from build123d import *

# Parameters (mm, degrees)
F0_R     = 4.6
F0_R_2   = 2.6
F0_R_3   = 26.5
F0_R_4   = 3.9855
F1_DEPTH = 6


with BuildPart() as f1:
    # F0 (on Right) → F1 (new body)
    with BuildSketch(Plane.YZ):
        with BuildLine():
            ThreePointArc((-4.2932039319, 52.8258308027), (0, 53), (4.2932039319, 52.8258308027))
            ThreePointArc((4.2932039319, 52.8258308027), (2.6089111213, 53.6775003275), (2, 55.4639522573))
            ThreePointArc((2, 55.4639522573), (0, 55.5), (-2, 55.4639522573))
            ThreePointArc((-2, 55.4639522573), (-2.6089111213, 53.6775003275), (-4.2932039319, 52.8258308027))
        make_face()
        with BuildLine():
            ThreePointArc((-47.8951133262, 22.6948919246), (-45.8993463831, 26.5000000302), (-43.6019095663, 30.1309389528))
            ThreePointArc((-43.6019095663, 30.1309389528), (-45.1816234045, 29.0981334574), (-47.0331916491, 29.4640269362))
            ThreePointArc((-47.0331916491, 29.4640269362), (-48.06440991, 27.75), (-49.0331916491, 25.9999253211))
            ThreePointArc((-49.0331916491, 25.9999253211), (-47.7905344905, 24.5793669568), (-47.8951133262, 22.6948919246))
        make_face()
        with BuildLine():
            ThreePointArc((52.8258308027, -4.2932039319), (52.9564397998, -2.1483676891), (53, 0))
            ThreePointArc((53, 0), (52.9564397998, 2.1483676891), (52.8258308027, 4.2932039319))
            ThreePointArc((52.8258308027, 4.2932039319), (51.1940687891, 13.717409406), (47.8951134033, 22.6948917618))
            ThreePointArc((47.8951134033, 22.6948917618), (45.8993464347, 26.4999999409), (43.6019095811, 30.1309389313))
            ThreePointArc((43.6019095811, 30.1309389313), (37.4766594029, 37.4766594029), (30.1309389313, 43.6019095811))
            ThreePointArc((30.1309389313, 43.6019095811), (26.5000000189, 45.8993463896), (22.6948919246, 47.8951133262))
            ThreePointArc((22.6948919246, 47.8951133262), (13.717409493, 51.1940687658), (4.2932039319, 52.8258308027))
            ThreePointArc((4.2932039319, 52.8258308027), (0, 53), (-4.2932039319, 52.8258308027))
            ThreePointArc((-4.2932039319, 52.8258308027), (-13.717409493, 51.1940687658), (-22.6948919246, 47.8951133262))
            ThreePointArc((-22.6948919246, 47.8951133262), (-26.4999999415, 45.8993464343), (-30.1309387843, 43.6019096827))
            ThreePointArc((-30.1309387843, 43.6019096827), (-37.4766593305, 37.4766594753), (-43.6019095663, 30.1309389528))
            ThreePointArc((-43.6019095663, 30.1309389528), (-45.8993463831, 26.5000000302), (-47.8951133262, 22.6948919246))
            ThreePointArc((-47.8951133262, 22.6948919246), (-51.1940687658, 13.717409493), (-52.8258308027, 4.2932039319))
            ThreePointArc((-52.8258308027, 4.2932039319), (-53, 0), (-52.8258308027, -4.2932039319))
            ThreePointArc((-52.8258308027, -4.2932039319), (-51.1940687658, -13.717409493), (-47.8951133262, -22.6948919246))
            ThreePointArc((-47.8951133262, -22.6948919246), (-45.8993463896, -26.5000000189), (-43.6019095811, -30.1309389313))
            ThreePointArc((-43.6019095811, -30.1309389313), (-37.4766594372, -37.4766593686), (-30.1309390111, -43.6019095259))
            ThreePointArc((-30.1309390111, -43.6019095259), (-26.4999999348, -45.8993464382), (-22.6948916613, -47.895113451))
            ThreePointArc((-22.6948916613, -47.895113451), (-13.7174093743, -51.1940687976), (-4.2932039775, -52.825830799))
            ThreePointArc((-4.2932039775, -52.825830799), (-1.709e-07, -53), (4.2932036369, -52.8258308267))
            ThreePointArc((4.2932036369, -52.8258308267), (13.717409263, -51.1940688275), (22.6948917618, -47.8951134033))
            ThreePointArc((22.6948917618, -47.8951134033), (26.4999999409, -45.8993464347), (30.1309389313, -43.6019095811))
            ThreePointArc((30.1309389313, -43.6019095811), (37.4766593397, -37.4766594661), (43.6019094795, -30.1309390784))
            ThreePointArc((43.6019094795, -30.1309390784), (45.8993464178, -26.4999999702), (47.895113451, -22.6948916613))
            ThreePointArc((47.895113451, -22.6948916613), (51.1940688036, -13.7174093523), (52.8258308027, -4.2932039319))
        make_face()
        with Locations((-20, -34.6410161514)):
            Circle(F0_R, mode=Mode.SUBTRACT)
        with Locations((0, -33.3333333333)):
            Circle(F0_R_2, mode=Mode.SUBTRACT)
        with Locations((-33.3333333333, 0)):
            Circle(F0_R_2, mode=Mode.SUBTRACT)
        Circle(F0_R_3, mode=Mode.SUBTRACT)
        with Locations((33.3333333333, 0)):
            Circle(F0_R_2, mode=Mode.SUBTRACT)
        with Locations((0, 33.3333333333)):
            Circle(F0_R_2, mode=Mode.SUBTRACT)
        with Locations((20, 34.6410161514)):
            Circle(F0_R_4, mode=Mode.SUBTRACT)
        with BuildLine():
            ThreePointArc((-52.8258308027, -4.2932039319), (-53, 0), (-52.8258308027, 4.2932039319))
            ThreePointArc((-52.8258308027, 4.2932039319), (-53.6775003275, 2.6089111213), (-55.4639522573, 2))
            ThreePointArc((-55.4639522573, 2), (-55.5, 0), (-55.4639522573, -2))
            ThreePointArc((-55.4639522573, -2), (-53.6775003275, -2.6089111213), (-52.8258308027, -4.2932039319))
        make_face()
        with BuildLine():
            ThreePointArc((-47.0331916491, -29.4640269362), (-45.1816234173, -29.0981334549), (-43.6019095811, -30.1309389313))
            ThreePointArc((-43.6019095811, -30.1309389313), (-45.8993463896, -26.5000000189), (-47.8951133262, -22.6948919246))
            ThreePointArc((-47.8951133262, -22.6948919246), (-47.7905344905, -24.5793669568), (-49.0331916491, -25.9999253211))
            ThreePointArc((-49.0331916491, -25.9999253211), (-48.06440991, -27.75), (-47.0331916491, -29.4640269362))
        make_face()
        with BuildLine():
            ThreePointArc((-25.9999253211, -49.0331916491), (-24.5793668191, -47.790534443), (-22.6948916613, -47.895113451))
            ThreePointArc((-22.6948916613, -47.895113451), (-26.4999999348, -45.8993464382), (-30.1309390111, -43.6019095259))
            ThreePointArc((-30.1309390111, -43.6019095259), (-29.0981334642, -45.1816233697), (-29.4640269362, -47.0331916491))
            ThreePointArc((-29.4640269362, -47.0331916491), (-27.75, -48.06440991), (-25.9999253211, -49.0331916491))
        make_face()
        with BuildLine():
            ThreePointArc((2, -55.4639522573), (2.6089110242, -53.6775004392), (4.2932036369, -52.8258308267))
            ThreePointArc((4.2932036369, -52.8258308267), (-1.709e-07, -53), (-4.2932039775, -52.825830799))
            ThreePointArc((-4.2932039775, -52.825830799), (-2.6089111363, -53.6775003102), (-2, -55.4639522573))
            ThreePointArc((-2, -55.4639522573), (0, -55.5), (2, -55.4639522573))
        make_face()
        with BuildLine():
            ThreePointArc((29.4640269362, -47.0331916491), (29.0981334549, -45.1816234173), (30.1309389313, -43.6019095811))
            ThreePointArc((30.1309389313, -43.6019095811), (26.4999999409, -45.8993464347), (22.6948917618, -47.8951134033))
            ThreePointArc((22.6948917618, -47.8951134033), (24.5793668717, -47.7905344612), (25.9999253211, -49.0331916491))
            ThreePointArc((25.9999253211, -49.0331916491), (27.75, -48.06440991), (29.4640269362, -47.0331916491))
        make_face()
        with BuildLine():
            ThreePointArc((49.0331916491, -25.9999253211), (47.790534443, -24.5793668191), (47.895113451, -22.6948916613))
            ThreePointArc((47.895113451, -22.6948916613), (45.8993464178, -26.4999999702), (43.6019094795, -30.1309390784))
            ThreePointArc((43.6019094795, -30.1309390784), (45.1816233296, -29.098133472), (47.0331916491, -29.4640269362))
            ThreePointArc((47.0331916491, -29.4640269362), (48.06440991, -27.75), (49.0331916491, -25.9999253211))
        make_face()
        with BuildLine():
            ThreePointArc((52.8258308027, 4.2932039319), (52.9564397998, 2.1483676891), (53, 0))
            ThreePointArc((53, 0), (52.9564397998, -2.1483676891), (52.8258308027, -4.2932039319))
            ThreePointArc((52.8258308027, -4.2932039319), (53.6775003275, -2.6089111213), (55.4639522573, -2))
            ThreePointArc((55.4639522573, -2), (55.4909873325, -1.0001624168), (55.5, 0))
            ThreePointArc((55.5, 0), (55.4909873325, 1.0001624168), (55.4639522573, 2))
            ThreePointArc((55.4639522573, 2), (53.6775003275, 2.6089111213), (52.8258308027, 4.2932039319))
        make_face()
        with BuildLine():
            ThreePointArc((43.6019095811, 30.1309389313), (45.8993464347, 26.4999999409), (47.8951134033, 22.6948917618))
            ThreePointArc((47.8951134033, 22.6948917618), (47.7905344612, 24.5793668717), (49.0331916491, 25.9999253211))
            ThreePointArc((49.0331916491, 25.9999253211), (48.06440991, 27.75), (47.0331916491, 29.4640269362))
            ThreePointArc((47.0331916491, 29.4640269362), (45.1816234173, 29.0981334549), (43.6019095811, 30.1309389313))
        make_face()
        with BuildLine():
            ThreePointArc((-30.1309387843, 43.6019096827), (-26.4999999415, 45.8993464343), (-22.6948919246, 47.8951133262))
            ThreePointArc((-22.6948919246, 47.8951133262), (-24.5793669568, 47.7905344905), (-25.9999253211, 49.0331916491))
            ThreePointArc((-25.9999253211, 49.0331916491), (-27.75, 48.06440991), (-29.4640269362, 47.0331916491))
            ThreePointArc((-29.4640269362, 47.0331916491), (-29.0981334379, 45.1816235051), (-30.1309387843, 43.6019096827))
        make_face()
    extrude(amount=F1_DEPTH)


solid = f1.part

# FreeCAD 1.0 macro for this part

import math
import FreeCAD as App
import Part
import Sketcher
from FreeCAD import Vector

doc = App.newDocument("Part")
body = doc.addObject("PartDesign::Body", "Body")

sketch1 = body.newObject("Sketcher::SketchObject", "Sketch")
sketch1.AttachmentSupport = (doc.getObject("YZ_Plane"), [""])
sketch1.MapMode = "FlatFace"
sketch1.addGeometry(Part.ArcOfCircle(Part.Circle(Vector(4.5, 55.3, 0), Vector(0, 0, 1), 2.5), math.radians(177), math.radians(265)), False)
sketch1.addGeometry(Part.ArcOfCircle(Part.Circle(Vector(0, 0, 0), Vector(0, 0, 1), 55.5), math.radians(87.93), math.radians(92.07)), False)
sketch1.addGeometry(Part.ArcOfCircle(Part.Circle(Vector(-4.5, 55.3, 0), Vector(0, 0, 1), 2.5), math.radians(-85), math.radians(3)), False)
sketch1.addGeometry(Part.ArcOfCircle(Part.Circle(Vector(0, 0, 0), Vector(0, 0, 1), 53), math.radians(95), math.radians(115)), False)
sketch1.addGeometry(Part.ArcOfCircle(Part.Circle(Vector(-23.8, 50.2, 0), Vector(0, 0, 1), 2.5), math.radians(-153), math.radians(-65)), False)
sketch1.addGeometry(Part.ArcOfCircle(Part.Circle(Vector(0, 0, 0), Vector(0, 0, 1), 55.5), math.radians(117.93), math.radians(122.07)), False)
sketch1.addGeometry(Part.ArcOfCircle(Part.Circle(Vector(-31.6, 45.7, 0), Vector(0, 0, 1), 2.5), math.radians(-55), math.radians(33)), False)
sketch1.addGeometry(Part.ArcOfCircle(Part.Circle(Vector(0, 0, 0), Vector(0, 0, 1), 53), math.radians(125), math.radians(145)), False)
sketch1.addGeometry(Part.ArcOfCircle(Part.Circle(Vector(-45.7, 31.6, 0), Vector(0, 0, 1), 2.5), math.radians(-123), math.radians(-35)), False)
sketch1.addGeometry(Part.ArcOfCircle(Part.Circle(Vector(0, 0, 0), Vector(0, 0, 1), 55.5), math.radians(147.93), math.radians(152.07)), False)
sketch1.addGeometry(Part.ArcOfCircle(Part.Circle(Vector(-50.2, 23.8, 0), Vector(0, 0, 1), 2.5), math.radians(-25), math.radians(63)), False)
sketch1.addGeometry(Part.ArcOfCircle(Part.Circle(Vector(0, 0, 0), Vector(0, 0, 1), 53), math.radians(155), math.radians(175)), False)
sketch1.addGeometry(Part.ArcOfCircle(Part.Circle(Vector(-55.3, 4.5, 0), Vector(0, 0, 1), 2.5), math.radians(-93), math.radians(-5)), False)
sketch1.addGeometry(Part.ArcOfCircle(Part.Circle(Vector(0, 0, 0), Vector(0, 0, 1), 55.5), math.radians(177.93), math.radians(182.07)), False)
sketch1.addGeometry(Part.ArcOfCircle(Part.Circle(Vector(-55.3, -4.5, 0), Vector(0, 0, 1), 2.5), math.radians(5), math.radians(93)), False)
sketch1.addGeometry(Part.ArcOfCircle(Part.Circle(Vector(0, 0, 0), Vector(0, 0, 1), 53), math.radians(-175), math.radians(-155)), False)
sketch1.addGeometry(Part.ArcOfCircle(Part.Circle(Vector(-50.2, -23.8, 0), Vector(0, 0, 1), 2.5), math.radians(-63), math.radians(25)), False)
sketch1.addGeometry(Part.ArcOfCircle(Part.Circle(Vector(0, 0, 0), Vector(0, 0, 1), 55.5), math.radians(-152.07), math.radians(-147.93)), False)
sketch1.addGeometry(Part.ArcOfCircle(Part.Circle(Vector(-45.7, -31.6, 0), Vector(0, 0, 1), 2.5), math.radians(35), math.radians(123)), False)
sketch1.addGeometry(Part.ArcOfCircle(Part.Circle(Vector(0, 0, 0), Vector(0, 0, 1), 53), math.radians(-145), math.radians(-125)), False)
sketch1.addGeometry(Part.ArcOfCircle(Part.Circle(Vector(-31.6, -45.7, 0), Vector(0, 0, 1), 2.5), math.radians(-33), math.radians(55)), False)
sketch1.addGeometry(Part.ArcOfCircle(Part.Circle(Vector(0, 0, 0), Vector(0, 0, 1), 55.5), math.radians(-122.07), math.radians(-117.93)), False)
sketch1.addGeometry(Part.ArcOfCircle(Part.Circle(Vector(-23.8, -50.2, 0), Vector(0, 0, 1), 2.5), math.radians(65), math.radians(153)), False)
sketch1.addGeometry(Part.ArcOfCircle(Part.Circle(Vector(0, 0, 0), Vector(0, 0, 1), 53), math.radians(-115), math.radians(-95)), False)
sketch1.addGeometry(Part.ArcOfCircle(Part.Circle(Vector(-4.5, -55.3, 0), Vector(0, 0, 1), 2.5), math.radians(-3), math.radians(85)), False)
sketch1.addGeometry(Part.ArcOfCircle(Part.Circle(Vector(0, 0, 0), Vector(0, 0, 1), 55.5), math.radians(-92.07), math.radians(-87.93)), False)
sketch1.addGeometry(Part.ArcOfCircle(Part.Circle(Vector(4.5, -55.3, 0), Vector(0, 0, 1), 2.5), math.radians(95), math.radians(183)), False)
sketch1.addGeometry(Part.ArcOfCircle(Part.Circle(Vector(0, 0, 0), Vector(0, 0, 1), 53), math.radians(-85), math.radians(-65)), False)
sketch1.addGeometry(Part.ArcOfCircle(Part.Circle(Vector(23.8, -50.2, 0), Vector(0, 0, 1), 2.5), math.radians(27), math.radians(115)), False)
sketch1.addGeometry(Part.ArcOfCircle(Part.Circle(Vector(0, 0, 0), Vector(0, 0, 1), 55.5), math.radians(-62.07), math.radians(-57.93)), False)
sketch1.addGeometry(Part.ArcOfCircle(Part.Circle(Vector(31.6, -45.7, 0), Vector(0, 0, 1), 2.5), math.radians(125), math.radians(213)), False)
sketch1.addGeometry(Part.ArcOfCircle(Part.Circle(Vector(0, 0, 0), Vector(0, 0, 1), 53), math.radians(-55), math.radians(-35)), False)
sketch1.addGeometry(Part.ArcOfCircle(Part.Circle(Vector(45.7, -31.6, 0), Vector(0, 0, 1), 2.5), math.radians(57), math.radians(145)), False)
sketch1.addGeometry(Part.ArcOfCircle(Part.Circle(Vector(0, 0, 0), Vector(0, 0, 1), 55.5), math.radians(-32.07), math.radians(-27.93)), False)
sketch1.addGeometry(Part.ArcOfCircle(Part.Circle(Vector(50.2, -23.8, 0), Vector(0, 0, 1), 2.5), math.radians(155), math.radians(243)), False)
sketch1.addGeometry(Part.ArcOfCircle(Part.Circle(Vector(0, 0, 0), Vector(0, 0, 1), 53), math.radians(-25), math.radians(-5)), False)
sketch1.addGeometry(Part.ArcOfCircle(Part.Circle(Vector(55.3, -4.5, 0), Vector(0, 0, 1), 2.5), math.radians(87), math.radians(175)), False)
sketch1.addGeometry(Part.ArcOfCircle(Part.Circle(Vector(0, 0, 0), Vector(0, 0, 1), 55.5), math.radians(-2.07), math.radians(0)), False)
sketch1.addGeometry(Part.ArcOfCircle(Part.Circle(Vector(0, 0, 0), Vector(0, 0, 1), 55.5), math.radians(0), math.radians(2.07)), False)
sketch1.addGeometry(Part.ArcOfCircle(Part.Circle(Vector(55.3, 4.5, 0), Vector(0, 0, 1), 2.5), math.radians(-175), math.radians(-87)), False)
sketch1.addGeometry(Part.ArcOfCircle(Part.Circle(Vector(0, 0, 0), Vector(0, 0, 1), 53), math.radians(5), math.radians(25)), False)
sketch1.addGeometry(Part.ArcOfCircle(Part.Circle(Vector(50.2, 23.8, 0), Vector(0, 0, 1), 2.5), math.radians(117), math.radians(205)), False)
sketch1.addGeometry(Part.ArcOfCircle(Part.Circle(Vector(0, 0, 0), Vector(0, 0, 1), 55.5), math.radians(27.93), math.radians(32.07)), False)
sketch1.addGeometry(Part.ArcOfCircle(Part.Circle(Vector(45.7, 31.6, 0), Vector(0, 0, 1), 2.5), math.radians(-145), math.radians(-57)), False)
sketch1.addGeometry(Part.ArcOfCircle(Part.Circle(Vector(0, 0, 0), Vector(0, 0, 1), 53), math.radians(35), math.radians(55)), False)
sketch1.addGeometry(Part.ArcOfCircle(Part.Circle(Vector(0, 0, 0), Vector(0, 0, 1), 53), math.radians(55.35), math.radians(64.65)), False)
sketch1.addGeometry(Part.ArcOfCircle(Part.Circle(Vector(0, 0, 0), Vector(0, 0, 1), 53), math.radians(65), math.radians(85)), False)
sketch1.addGeometry(Part.Circle(Vector(-20, -34.6, 0), Vector(0, 0, 1), 4.6), False)
sketch1.addGeometry(Part.Circle(Vector(0, -33.3, 0), Vector(0, 0, 1), 2.6), False)
sketch1.addGeometry(Part.Circle(Vector(-33.3, 0, 0), Vector(0, 0, 1), 2.6), False)
sketch1.addGeometry(Part.Circle(Vector(0, 0, 0), Vector(0, 0, 1), 26.5), False)
sketch1.addGeometry(Part.Circle(Vector(33.3, 0, 0), Vector(0, 0, 1), 2.6), False)
sketch1.addGeometry(Part.Circle(Vector(0, 33.3, 0), Vector(0, 0, 1), 2.6), False)
sketch1.addGeometry(Part.Circle(Vector(20, 34.6, 0), Vector(0, 0, 1), 4), False)
sketch1.addConstraint(Sketcher.Constraint("Coincident", 0, 1, 1, 1))
sketch1.addConstraint(Sketcher.Constraint("Coincident", 1, 2, 2, 2))
sketch1.addConstraint(Sketcher.Constraint("Tangent", 2, 1, 3, 1))
sketch1.addConstraint(Sketcher.Constraint("Tangent", 3, 2, 4, 2))
sketch1.addConstraint(Sketcher.Constraint("Coincident", 4, 1, 5, 1))
sketch1.addConstraint(Sketcher.Constraint("Coincident", 5, 2, 6, 2))
sketch1.addConstraint(Sketcher.Constraint("Tangent", 6, 1, 7, 1))
sketch1.addConstraint(Sketcher.Constraint("Tangent", 7, 2, 8, 2))
sketch1.addConstraint(Sketcher.Constraint("Coincident", 8, 1, 9, 1))
sketch1.addConstraint(Sketcher.Constraint("Coincident", 9, 2, 10, 2))
sketch1.addConstraint(Sketcher.Constraint("Tangent", 10, 1, 11, 1))
sketch1.addConstraint(Sketcher.Constraint("Tangent", 11, 2, 12, 2))
sketch1.addConstraint(Sketcher.Constraint("Coincident", 12, 1, 13, 1))
sketch1.addConstraint(Sketcher.Constraint("Coincident", 13, 2, 14, 2))
sketch1.addConstraint(Sketcher.Constraint("Tangent", 14, 1, 15, 1))
sketch1.addConstraint(Sketcher.Constraint("Tangent", 15, 2, 16, 2))
sketch1.addConstraint(Sketcher.Constraint("Coincident", 16, 1, 17, 1))
sketch1.addConstraint(Sketcher.Constraint("Coincident", 17, 2, 18, 2))
sketch1.addConstraint(Sketcher.Constraint("Tangent", 18, 1, 19, 1))
sketch1.addConstraint(Sketcher.Constraint("Tangent", 19, 2, 20, 2))
sketch1.addConstraint(Sketcher.Constraint("Coincident", 20, 1, 21, 1))
sketch1.addConstraint(Sketcher.Constraint("Coincident", 21, 2, 22, 2))
sketch1.addConstraint(Sketcher.Constraint("Tangent", 22, 1, 23, 1))
sketch1.addConstraint(Sketcher.Constraint("Tangent", 23, 2, 24, 2))
sketch1.addConstraint(Sketcher.Constraint("Coincident", 24, 1, 25, 1))
sketch1.addConstraint(Sketcher.Constraint("Coincident", 25, 2, 26, 2))
sketch1.addConstraint(Sketcher.Constraint("Tangent", 26, 1, 27, 1))
sketch1.addConstraint(Sketcher.Constraint("Tangent", 27, 2, 28, 2))
sketch1.addConstraint(Sketcher.Constraint("Coincident", 28, 1, 29, 1))
sketch1.addConstraint(Sketcher.Constraint("Coincident", 29, 2, 30, 2))
sketch1.addConstraint(Sketcher.Constraint("Tangent", 30, 1, 31, 1))
sketch1.addConstraint(Sketcher.Constraint("Tangent", 31, 2, 32, 2))
sketch1.addConstraint(Sketcher.Constraint("Coincident", 32, 1, 33, 1))
sketch1.addConstraint(Sketcher.Constraint("Coincident", 33, 2, 34, 2))
sketch1.addConstraint(Sketcher.Constraint("Tangent", 34, 1, 35, 1))
sketch1.addConstraint(Sketcher.Constraint("Tangent", 35, 2, 36, 2))
sketch1.addConstraint(Sketcher.Constraint("Coincident", 36, 1, 37, 1))
sketch1.addConstraint(Sketcher.Constraint("Tangent", 37, 2, 38, 1))
sketch1.addConstraint(Sketcher.Constraint("Coincident", 38, 2, 39, 2))
sketch1.addConstraint(Sketcher.Constraint("Tangent", 39, 1, 40, 1))
sketch1.addConstraint(Sketcher.Constraint("Tangent", 40, 2, 41, 2))
sketch1.addConstraint(Sketcher.Constraint("Coincident", 41, 1, 42, 1))
sketch1.addConstraint(Sketcher.Constraint("Coincident", 42, 2, 43, 2))
sketch1.addConstraint(Sketcher.Constraint("Tangent", 43, 1, 44, 1))
sketch1.addConstraint(Sketcher.Constraint("Tangent", 44, 2, 45, 1))
sketch1.addConstraint(Sketcher.Constraint("Tangent", 45, 2, 46, 1))
sketch1.addConstraint(Sketcher.Constraint("Tangent", 46, 2, 0, 2))
sketch1.addConstraint(Sketcher.Constraint("Coincident", 1, 3, -1, 1))
sketch1.addConstraint(Sketcher.Constraint("Coincident", 3, 3, -1, 1))
sketch1.addConstraint(Sketcher.Constraint("Coincident", 5, 3, -1, 1))
sketch1.addConstraint(Sketcher.Constraint("Coincident", 7, 3, -1, 1))
sketch1.addConstraint(Sketcher.Constraint("Coincident", 9, 3, -1, 1))
sketch1.addConstraint(Sketcher.Constraint("Coincident", 11, 3, -1, 1))
sketch1.addConstraint(Sketcher.Constraint("Coincident", 13, 3, -1, 1))
sketch1.addConstraint(Sketcher.Constraint("Coincident", 15, 3, -1, 1))
sketch1.addConstraint(Sketcher.Constraint("Coincident", 17, 3, -1, 1))
sketch1.addConstraint(Sketcher.Constraint("Coincident", 19, 3, -1, 1))
sketch1.addConstraint(Sketcher.Constraint("Coincident", 21, 3, -1, 1))
sketch1.addConstraint(Sketcher.Constraint("Coincident", 23, 3, -1, 1))
sketch1.addConstraint(Sketcher.Constraint("Coincident", 25, 3, -1, 1))
sketch1.addConstraint(Sketcher.Constraint("Coincident", 27, 3, -1, 1))
sketch1.addConstraint(Sketcher.Constraint("Coincident", 29, 3, -1, 1))
sketch1.addConstraint(Sketcher.Constraint("Coincident", 31, 3, -1, 1))
sketch1.addConstraint(Sketcher.Constraint("Coincident", 33, 3, -1, 1))
sketch1.addConstraint(Sketcher.Constraint("Coincident", 35, 3, -1, 1))
sketch1.addConstraint(Sketcher.Constraint("Coincident", 37, 3, -1, 1))
sketch1.addConstraint(Sketcher.Constraint("Coincident", 40, 3, -1, 1))
sketch1.addConstraint(Sketcher.Constraint("Coincident", 42, 3, -1, 1))
sketch1.addConstraint(Sketcher.Constraint("Coincident", 44, 3, -1, 1))
sketch1.addConstraint(Sketcher.Constraint("Coincident", 46, 3, -1, 1))
sketch1.addConstraint(Sketcher.Constraint("Coincident", 50, 3, -1, 1))
sketch1.addConstraint(Sketcher.Constraint("Equal", 0, 2))
sketch1.addConstraint(Sketcher.Constraint("Equal", 2, 4))
sketch1.addConstraint(Sketcher.Constraint("Equal", 1, 5))
sketch1.addConstraint(Sketcher.Constraint("Equal", 4, 6))
sketch1.addConstraint(Sketcher.Constraint("Equal", 3, 7))
sketch1.addConstraint(Sketcher.Constraint("Equal", 6, 8))
sketch1.addConstraint(Sketcher.Constraint("Equal", 5, 9))
sketch1.addConstraint(Sketcher.Constraint("Equal", 8, 10))
sketch1.addConstraint(Sketcher.Constraint("Equal", 7, 11))
sketch1.addConstraint(Sketcher.Constraint("Equal", 10, 12))
sketch1.addConstraint(Sketcher.Constraint("Equal", 9, 13))
sketch1.addConstraint(Sketcher.Constraint("Equal", 12, 14))
sketch1.addConstraint(Sketcher.Constraint("Equal", 11, 15))
sketch1.addConstraint(Sketcher.Constraint("Equal", 14, 16))
sketch1.addConstraint(Sketcher.Constraint("Equal", 13, 17))
sketch1.addConstraint(Sketcher.Constraint("Equal", 16, 18))
sketch1.addConstraint(Sketcher.Constraint("Equal", 15, 19))
sketch1.addConstraint(Sketcher.Constraint("Equal", 18, 20))
sketch1.addConstraint(Sketcher.Constraint("Equal", 17, 21))
sketch1.addConstraint(Sketcher.Constraint("Equal", 20, 22))
sketch1.addConstraint(Sketcher.Constraint("Equal", 19, 23))
sketch1.addConstraint(Sketcher.Constraint("Equal", 22, 24))
sketch1.addConstraint(Sketcher.Constraint("Equal", 21, 25))
sketch1.addConstraint(Sketcher.Constraint("Equal", 24, 26))
sketch1.addConstraint(Sketcher.Constraint("Equal", 23, 27))
sketch1.addConstraint(Sketcher.Constraint("Equal", 26, 28))
sketch1.addConstraint(Sketcher.Constraint("Equal", 25, 29))
sketch1.addConstraint(Sketcher.Constraint("Equal", 28, 30))
sketch1.addConstraint(Sketcher.Constraint("Equal", 27, 31))
sketch1.addConstraint(Sketcher.Constraint("Equal", 30, 32))
sketch1.addConstraint(Sketcher.Constraint("Equal", 29, 33))
sketch1.addConstraint(Sketcher.Constraint("Equal", 32, 34))
sketch1.addConstraint(Sketcher.Constraint("Equal", 31, 35))
sketch1.addConstraint(Sketcher.Constraint("Equal", 34, 36))
sketch1.addConstraint(Sketcher.Constraint("Equal", 33, 37))
sketch1.addConstraint(Sketcher.Constraint("Equal", 37, 38))
sketch1.addConstraint(Sketcher.Constraint("Equal", 36, 39))
sketch1.addConstraint(Sketcher.Constraint("Equal", 35, 40))
sketch1.addConstraint(Sketcher.Constraint("Equal", 39, 41))
sketch1.addConstraint(Sketcher.Constraint("Equal", 38, 42))
sketch1.addConstraint(Sketcher.Constraint("Equal", 41, 43))
sketch1.addConstraint(Sketcher.Constraint("Equal", 40, 44))
sketch1.addConstraint(Sketcher.Constraint("Equal", 48, 49))
sketch1.addConstraint(Sketcher.Constraint("Equal", 49, 51))
sketch1.addConstraint(Sketcher.Constraint("Equal", 51, 52))
sketch1.addConstraint(Sketcher.Constraint("Symmetric", 49, 3, 51, 3, -1, 1))
sketch1.addConstraint(Sketcher.Constraint("Symmetric", 48, 3, 52, 3, -1, 1))
sketch1.addConstraint(Sketcher.Constraint("Symmetric", 47, 3, 53, 3, -1, 1))
sketch1.addConstraint(Sketcher.Constraint("PointOnObject", 48, 3, -2))
sketch1.addConstraint(Sketcher.Constraint("PointOnObject", 49, 3, -1))
sketch1.addConstraint(Sketcher.Constraint("PointOnObject", 37, 2, -1))
sketch1.addConstraint(Sketcher.Constraint("Horizontal", 0, 3, 2, 3))
sketch1.addConstraint(Sketcher.Constraint("Horizontal", 24, 3, 26, 3))
sketch1.addConstraint(Sketcher.Constraint("Horizontal", 22, 3, 28, 3))
sketch1.addConstraint(Sketcher.Constraint("Horizontal", 20, 3, 30, 3))
sketch1.addConstraint(Sketcher.Constraint("Horizontal", 18, 3, 32, 3))
sketch1.addConstraint(Sketcher.Constraint("Horizontal", 16, 3, 34, 3))
sketch1.addConstraint(Sketcher.Constraint("Horizontal", 14, 3, 36, 3))
sketch1.addConstraint(Sketcher.Constraint("Horizontal", 12, 3, 39, 3))
sketch1.addConstraint(Sketcher.Constraint("Horizontal", 10, 3, 41, 3))
sketch1.addConstraint(Sketcher.Constraint("Horizontal", 8, 3, 43, 3))
sketch1.addConstraint(Sketcher.Constraint("Horizontal", 6, 1, 44, 2))
sketch1.addConstraint(Sketcher.Constraint("Horizontal", 3, 2, 45, 2))
sketch1.addConstraint(Sketcher.Constraint("Vertical", 12, 3, 14, 3))
sketch1.addConstraint(Sketcher.Constraint("Vertical", 10, 3, 16, 3))
sketch1.addConstraint(Sketcher.Constraint("Vertical", 8, 3, 18, 3))
sketch1.addConstraint(Sketcher.Constraint("Vertical", 6, 3, 20, 3))
sketch1.addConstraint(Sketcher.Constraint("Vertical", 4, 3, 22, 3))
sketch1.addConstraint(Sketcher.Constraint("Vertical", 2, 3, 24, 3))
sketch1.addConstraint(Sketcher.Constraint("Diameter", 50, 53.0))
sketch1.addConstraint(Sketcher.Constraint("Radius", 3, 53.0))
sketch1.addConstraint(Sketcher.Constraint("Diameter", 47, 9.2))
sketch1.addConstraint(Sketcher.Constraint("Diameter", 48, 5.2))
sketch1.addConstraint(Sketcher.Constraint("Radius", 0, 2.5))
sketch1.addConstraint(Sketcher.Constraint("Radius", 1, 55.5))
sketch1.addConstraint(Sketcher.Constraint("Diameter", 53, 7.971))
sketch1.addConstraint(Sketcher.Constraint("DistanceX", 47, 3, -1, 1, 20.0))
sketch1.addConstraint(Sketcher.Constraint("DistanceX", -1, 1, 0, 1, 2.0))
sketch1.addConstraint(Sketcher.Constraint("DistanceY", -1, 1, 12, 1, 2.0))
sketch1.addConstraint(Sketcher.Constraint("DistanceX", 6, 3, -1, 1, 31.55221))
sketch1.addConstraint(Sketcher.Constraint("DistanceY", -1, 1, 8, 3, 31.55221))
sketch1.addConstraint(Sketcher.Constraint("DistanceX", 3, 2, -1, 1, 22.694892))
sketch1.addConstraint(Sketcher.Constraint("DistanceX", 9, 2, -1, 1, 49.033192))
sketch1.addConstraint(Sketcher.Constraint("DistanceY", 47, 3, -1, 1, 34.641016))
sketch1.addConstraint(Sketcher.Constraint("DistanceY", 48, 3, -1, 1, 33.333333))
sketch1.addConstraint(Sketcher.Constraint("DistanceX", 49, 3, -1, 1, 33.333333))
pad1 = body.newObject("PartDesign::Pad", "Pad")
pad1.Profile = sketch1
pad1.Length = 6

doc.recompute()
